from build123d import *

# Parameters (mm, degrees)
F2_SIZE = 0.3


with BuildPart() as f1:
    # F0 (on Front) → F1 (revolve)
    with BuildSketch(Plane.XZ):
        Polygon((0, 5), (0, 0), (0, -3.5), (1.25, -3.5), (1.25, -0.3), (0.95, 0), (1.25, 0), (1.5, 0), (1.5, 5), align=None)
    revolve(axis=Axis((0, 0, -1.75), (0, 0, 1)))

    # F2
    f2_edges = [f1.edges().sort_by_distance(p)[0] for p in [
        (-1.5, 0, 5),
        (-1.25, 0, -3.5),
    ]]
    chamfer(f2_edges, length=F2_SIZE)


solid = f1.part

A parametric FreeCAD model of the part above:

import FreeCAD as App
import Part
import Sketcher
Q = App.Units.Quantity


def edges_at(feature, points):
    """Names of the edges that pass closest to the given points."""
    edges = feature.Shape.Edges
    near = lambda p: min(range(len(edges)), key=lambda i: edges[i].distToShape(Part.Vertex(*p))[0])
    return sorted({f"Edge{near(p) + 1}" for p in points})

doc = App.newDocument("Part")
body = doc.addObject("PartDesign::Body", "Body")

# Sketch on XZ plane
sketch1 = doc.addObject("Sketcher::SketchObject", "Sketch")
body.addObject(sketch1)
sketch1.AttachmentSupport = (doc.XZ_Plane, [""])
sketch1.MapMode = "FlatFace"
sketch1.addGeometry([
    Part.LineSegment(App.Vector(0, 5, 0), App.Vector(0, -3.5, 0)),  # 0
    Part.LineSegment(App.Vector(0, -3.5, 0), App.Vector(1.25, -3.5, 0)),  # 1
    Part.LineSegment(App.Vector(1.25, -3.5, 0), App.Vector(1.25, -0.3, 0)),  # 2
    Part.LineSegment(App.Vector(1.25, -0.3, 0), App.Vector(0.95, 0, 0)),  # 3
    Part.LineSegment(App.Vector(0.95, 0, 0), App.Vector(1.5, 0, 0)),  # 4
    Part.LineSegment(App.Vector(1.5, 0, 0), App.Vector(1.5, 5, 0)),  # 5
    Part.LineSegment(App.Vector(1.5, 5, 0), App.Vector(0, 5, 0)),  # 6
], False)
sketch1.addConstraint([
    Sketcher.Constraint("Coincident", 0, 2, 1, 1),
    Sketcher.Constraint("Coincident", 1, 2, 2, 1),
    Sketcher.Constraint("Coincident", 2, 2, 3, 1),
    Sketcher.Constraint("Coincident", 3, 2, 4, 1),
    Sketcher.Constraint("Coincident", 4, 2, 5, 1),
    Sketcher.Constraint("Coincident", 5, 2, 6, 1),
    Sketcher.Constraint("Coincident", 6, 2, 0, 1),
    Sketcher.Constraint("Vertical", 0),
    Sketcher.Constraint("Horizontal", 1),
    Sketcher.Constraint("Vertical", 2),
    Sketcher.Constraint("Horizontal", 4),
    Sketcher.Constraint("Vertical", 5),
    Sketcher.Constraint("Horizontal", 6),
    Sketcher.Constraint("PointOnObject", 0, 2, -2),
    Sketcher.Constraint("PointOnObject", 3, 2, -1),
    Sketcher.Constraint("DistanceY", 5, 1, 5, 2, 5.0),
    Sketcher.Constraint("Angle", 3, Q("135 deg")),
    Sketcher.Constraint("DistanceX", 6, 2, 6, 1, 1.5),
    Sketcher.Constraint("DistanceY", 0, 2, 0, 1, 8.5),
    Sketcher.Constraint("DistanceY", 2, 1, 2, 2, 3.2),
    Sketcher.Constraint("DistanceX", 1, 1, 1, 2, 1.25),
])
revolution = doc.addObject("PartDesign::Revolution", "Revolution")
body.addObject(revolution)
revolution.Profile = sketch1
revolution.ReferenceAxis = (sketch1, ["V_Axis"])
revolution.Angle = 360
doc.recompute()

chamfer = doc.addObject("PartDesign::Chamfer", "Chamfer")
body.addObject(chamfer)
chamfer.Base = (revolution, edges_at(revolution, [(-1.5, 0, 5), (-1.25, 0, -3.5)]))
chamfer.Size = 0.3

doc.recompute()
